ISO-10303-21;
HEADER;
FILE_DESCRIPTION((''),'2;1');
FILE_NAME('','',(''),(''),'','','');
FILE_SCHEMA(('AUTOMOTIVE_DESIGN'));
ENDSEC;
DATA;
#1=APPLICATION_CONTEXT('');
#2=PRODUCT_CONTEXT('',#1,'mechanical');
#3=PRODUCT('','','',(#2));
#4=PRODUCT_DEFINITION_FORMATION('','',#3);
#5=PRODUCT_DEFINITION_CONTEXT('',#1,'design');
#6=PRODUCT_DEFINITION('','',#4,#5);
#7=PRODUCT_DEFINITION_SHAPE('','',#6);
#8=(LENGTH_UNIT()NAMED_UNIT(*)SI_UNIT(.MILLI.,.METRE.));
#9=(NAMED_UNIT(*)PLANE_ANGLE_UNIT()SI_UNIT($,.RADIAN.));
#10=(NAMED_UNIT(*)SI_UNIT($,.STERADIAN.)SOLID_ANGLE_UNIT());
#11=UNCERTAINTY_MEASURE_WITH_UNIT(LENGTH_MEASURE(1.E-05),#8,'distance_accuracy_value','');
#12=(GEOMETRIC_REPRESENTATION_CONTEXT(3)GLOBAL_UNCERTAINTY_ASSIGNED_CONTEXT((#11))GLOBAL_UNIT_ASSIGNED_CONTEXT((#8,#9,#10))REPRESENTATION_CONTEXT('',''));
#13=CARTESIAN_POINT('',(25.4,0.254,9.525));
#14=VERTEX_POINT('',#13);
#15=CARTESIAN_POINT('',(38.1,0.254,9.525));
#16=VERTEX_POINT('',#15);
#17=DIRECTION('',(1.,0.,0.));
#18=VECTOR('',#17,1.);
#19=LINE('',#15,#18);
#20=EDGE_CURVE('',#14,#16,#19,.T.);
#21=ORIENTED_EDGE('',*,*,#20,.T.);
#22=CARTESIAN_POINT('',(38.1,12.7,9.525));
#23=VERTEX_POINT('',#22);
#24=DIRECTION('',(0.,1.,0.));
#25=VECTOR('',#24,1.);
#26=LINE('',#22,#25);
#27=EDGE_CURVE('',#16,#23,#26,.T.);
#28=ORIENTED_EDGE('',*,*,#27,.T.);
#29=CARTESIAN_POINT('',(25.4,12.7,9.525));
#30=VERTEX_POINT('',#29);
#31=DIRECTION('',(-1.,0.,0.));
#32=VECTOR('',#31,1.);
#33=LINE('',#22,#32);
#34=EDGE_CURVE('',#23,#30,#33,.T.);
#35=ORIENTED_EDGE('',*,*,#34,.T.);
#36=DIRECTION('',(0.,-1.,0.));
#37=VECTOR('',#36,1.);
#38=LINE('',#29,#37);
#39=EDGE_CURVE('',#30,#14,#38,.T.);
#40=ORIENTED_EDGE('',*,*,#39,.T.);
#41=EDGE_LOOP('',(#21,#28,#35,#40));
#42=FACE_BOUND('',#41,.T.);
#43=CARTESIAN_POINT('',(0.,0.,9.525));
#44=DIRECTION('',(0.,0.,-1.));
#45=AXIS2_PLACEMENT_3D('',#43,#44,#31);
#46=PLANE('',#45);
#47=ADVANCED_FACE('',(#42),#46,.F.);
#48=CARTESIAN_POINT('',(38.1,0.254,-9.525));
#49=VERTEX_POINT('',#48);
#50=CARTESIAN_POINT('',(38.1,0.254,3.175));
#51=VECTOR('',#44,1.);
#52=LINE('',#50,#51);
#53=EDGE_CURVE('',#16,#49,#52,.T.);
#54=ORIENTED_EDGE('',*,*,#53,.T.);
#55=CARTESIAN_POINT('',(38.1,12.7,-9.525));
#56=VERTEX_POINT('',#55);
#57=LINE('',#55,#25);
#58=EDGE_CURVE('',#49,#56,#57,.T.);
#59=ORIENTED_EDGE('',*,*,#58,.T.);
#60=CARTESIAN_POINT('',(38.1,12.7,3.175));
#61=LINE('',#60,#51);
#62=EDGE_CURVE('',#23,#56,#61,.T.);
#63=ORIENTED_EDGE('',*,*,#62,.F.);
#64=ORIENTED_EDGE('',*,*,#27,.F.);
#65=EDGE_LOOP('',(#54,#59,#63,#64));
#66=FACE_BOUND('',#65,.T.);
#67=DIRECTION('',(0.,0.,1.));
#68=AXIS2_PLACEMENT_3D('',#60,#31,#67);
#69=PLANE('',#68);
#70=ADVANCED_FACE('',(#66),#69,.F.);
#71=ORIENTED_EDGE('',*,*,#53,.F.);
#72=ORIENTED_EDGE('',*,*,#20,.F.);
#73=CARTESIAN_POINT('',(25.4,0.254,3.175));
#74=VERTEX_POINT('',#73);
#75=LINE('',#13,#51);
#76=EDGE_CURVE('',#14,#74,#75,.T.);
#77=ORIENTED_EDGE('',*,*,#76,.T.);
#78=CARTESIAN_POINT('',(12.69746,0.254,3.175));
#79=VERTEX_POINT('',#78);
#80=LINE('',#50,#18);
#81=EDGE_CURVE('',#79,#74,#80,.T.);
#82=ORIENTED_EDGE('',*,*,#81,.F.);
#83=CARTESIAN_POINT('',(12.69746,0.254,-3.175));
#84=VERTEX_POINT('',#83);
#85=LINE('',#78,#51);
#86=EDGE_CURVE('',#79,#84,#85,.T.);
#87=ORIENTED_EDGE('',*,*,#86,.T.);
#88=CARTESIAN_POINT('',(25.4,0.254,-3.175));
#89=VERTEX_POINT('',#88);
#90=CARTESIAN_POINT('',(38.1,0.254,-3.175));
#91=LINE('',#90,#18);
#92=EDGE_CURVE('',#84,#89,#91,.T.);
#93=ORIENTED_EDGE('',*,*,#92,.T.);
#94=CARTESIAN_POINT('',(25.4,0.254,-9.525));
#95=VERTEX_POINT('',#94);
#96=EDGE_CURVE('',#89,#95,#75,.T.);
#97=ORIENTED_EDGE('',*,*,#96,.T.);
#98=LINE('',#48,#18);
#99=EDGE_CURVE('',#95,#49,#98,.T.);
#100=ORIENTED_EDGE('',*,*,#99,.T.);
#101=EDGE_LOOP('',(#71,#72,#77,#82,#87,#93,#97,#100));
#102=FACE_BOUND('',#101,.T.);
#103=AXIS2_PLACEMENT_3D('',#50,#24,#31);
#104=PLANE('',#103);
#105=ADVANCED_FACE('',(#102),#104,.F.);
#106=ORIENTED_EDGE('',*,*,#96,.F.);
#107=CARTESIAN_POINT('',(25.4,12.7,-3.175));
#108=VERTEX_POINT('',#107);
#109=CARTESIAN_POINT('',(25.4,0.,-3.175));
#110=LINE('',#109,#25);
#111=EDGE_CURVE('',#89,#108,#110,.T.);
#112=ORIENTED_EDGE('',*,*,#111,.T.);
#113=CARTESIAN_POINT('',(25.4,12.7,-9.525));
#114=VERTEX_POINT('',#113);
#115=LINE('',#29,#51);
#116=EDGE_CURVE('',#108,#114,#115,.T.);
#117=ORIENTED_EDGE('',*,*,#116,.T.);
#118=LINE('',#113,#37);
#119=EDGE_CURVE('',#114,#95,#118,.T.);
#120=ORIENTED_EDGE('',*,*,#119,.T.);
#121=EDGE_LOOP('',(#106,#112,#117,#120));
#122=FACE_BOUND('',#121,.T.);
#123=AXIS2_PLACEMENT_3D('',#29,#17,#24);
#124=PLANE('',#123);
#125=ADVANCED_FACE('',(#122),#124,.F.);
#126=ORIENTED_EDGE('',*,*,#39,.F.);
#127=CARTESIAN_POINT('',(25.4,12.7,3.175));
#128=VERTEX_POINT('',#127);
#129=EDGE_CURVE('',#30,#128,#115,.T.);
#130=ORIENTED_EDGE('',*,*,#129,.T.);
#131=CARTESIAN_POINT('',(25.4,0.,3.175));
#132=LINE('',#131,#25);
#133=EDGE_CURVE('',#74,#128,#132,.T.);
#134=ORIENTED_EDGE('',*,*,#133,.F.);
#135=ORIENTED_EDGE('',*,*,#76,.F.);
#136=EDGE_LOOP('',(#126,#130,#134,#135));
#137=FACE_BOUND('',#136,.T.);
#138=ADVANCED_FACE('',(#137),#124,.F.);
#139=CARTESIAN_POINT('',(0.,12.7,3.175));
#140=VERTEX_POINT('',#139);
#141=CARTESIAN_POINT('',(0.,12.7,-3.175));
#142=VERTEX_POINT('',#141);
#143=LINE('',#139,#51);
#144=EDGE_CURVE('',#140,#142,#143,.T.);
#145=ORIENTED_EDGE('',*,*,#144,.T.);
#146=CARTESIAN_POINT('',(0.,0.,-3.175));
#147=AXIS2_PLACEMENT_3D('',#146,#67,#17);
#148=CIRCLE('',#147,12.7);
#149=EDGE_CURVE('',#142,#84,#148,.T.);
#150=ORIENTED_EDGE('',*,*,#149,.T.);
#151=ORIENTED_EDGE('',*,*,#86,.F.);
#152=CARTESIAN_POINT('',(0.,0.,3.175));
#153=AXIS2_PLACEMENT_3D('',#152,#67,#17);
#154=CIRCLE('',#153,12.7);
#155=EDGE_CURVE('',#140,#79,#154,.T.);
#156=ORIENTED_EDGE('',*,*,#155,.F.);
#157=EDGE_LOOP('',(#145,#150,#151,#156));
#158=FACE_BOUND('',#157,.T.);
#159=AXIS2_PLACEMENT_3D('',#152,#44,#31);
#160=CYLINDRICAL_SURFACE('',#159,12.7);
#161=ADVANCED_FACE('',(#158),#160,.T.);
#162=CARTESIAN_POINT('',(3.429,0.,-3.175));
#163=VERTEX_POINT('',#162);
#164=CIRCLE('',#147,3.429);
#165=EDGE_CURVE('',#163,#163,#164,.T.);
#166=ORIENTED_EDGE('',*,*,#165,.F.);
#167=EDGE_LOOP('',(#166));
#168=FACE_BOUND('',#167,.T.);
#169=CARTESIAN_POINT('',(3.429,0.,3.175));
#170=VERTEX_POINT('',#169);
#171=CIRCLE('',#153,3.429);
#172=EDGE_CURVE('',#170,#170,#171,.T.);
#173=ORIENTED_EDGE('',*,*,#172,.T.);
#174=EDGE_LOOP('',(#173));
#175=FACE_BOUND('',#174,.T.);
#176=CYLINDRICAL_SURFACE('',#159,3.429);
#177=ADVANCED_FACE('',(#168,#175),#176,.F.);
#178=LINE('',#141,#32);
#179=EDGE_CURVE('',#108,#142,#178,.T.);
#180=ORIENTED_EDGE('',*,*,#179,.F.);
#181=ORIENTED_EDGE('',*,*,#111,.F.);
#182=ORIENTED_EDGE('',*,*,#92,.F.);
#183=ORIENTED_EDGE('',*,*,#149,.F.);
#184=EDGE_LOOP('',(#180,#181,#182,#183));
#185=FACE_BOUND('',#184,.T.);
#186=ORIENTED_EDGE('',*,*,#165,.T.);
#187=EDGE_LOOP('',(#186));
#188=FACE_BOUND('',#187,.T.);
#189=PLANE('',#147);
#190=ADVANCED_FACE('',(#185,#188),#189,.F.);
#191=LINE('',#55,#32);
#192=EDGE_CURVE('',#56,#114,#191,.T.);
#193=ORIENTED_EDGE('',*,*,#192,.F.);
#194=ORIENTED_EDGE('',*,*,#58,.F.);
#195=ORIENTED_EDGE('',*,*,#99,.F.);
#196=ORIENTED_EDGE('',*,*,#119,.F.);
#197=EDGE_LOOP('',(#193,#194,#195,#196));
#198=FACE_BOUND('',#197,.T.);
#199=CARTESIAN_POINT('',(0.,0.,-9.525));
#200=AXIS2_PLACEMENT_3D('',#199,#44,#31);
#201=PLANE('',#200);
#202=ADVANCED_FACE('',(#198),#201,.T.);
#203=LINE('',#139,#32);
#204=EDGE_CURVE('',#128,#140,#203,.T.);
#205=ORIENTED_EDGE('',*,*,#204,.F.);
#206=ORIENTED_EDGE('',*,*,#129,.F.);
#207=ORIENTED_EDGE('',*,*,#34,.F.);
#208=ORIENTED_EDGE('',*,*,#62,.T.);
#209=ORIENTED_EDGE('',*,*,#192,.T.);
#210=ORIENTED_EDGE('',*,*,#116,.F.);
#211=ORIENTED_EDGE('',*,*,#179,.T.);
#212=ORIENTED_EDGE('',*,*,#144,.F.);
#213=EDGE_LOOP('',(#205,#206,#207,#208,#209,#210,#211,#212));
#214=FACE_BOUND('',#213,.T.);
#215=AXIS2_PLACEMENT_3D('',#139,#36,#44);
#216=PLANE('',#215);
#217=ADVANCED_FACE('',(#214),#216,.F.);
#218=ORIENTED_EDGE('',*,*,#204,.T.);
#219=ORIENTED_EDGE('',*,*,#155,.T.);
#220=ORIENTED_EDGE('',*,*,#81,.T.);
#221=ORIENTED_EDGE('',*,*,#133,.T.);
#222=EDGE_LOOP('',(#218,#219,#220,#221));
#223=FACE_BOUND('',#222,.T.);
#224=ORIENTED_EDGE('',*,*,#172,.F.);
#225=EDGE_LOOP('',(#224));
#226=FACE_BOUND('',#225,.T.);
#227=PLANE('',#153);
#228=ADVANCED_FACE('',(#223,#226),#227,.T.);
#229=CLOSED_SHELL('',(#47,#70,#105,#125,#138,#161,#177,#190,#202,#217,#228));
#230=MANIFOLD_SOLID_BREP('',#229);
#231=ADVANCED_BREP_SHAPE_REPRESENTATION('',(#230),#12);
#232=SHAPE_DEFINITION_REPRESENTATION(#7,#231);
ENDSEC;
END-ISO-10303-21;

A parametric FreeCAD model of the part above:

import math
import FreeCAD as App
import Part
import Sketcher
Q = App.Units.Quantity

doc = App.newDocument("Part")
body = doc.addObject("PartDesign::Body", "Body")

sketch1 = body.newObject("Sketcher::SketchObject", "Sketch")
sketch1.AttachmentSupport = (doc.getObject("XY_Plane"), [""])
sketch1.MapMode = "FlatFace"
sketch1.addGeometry([
    Part.LineSegment(App.Vector(38.1, 12.7, 0), App.Vector(0, 12.7, 0)),
    Part.ArcOfCircle(Part.Circle(App.Vector(0, 0, 0), App.Vector(0, 0, 1), 12.7), math.radians(90), math.radians(361)),
    Part.LineSegment(App.Vector(12.7, 0.3, 0), App.Vector(38.1, 0.3, 0)),
    Part.LineSegment(App.Vector(38.1, 0.3, 0), App.Vector(38.1, 12.7, 0)),
    Part.Circle(App.Vector(0, 0, 0), App.Vector(0, 0, 1), 3.4),
], False)
sketch1.addConstraint([
    Sketcher.Constraint("Tangent", 0, 2, 1, 1),
    Sketcher.Constraint("Coincident", 1, 2, 2, 1),
    Sketcher.Constraint("Coincident", 2, 2, 3, 1),
    Sketcher.Constraint("Coincident", 3, 2, 0, 1),
    Sketcher.Constraint("Horizontal", 0),
    Sketcher.Constraint("Horizontal", 2),
    Sketcher.Constraint("Vertical", 3),
    Sketcher.Constraint("Coincident", 1, 3, -1, 1),
    Sketcher.Constraint("Coincident", 4, 3, -1, 1),
    Sketcher.Constraint("Radius", 1, Q("0.5 in")),
    Sketcher.Constraint("Diameter", 4, Q("0.27 in")),
    Sketcher.Constraint("DistanceX", 0, 2, 0, 1, Q("1.5 in")),
    Sketcher.Constraint("DistanceY", 3, 1, 3, 2, Q("0.49 in")),
])
pad1 = body.newObject("PartDesign::Pad", "Pad")
pad1.Profile = sketch1
pad1.Length = Q("0.25 in")
pad1.Midplane = True

sketch2 = body.newObject("Sketcher::SketchObject", "Sketch001")
sketch2.AttachmentSupport = (doc.getObject("XY_Plane"), [""])
sketch2.MapMode = "FlatFace"
sketch2.addGeometry([
    Part.LineSegment(App.Vector(25, 13, 0), App.Vector(25, 0, 0)),
    Part.LineSegment(App.Vector(25, 0, 0), App.Vector(38, 0, 0)),
    Part.LineSegment(App.Vector(38, 0, 0), App.Vector(38, 13, 0)),
    Part.LineSegment(App.Vector(38, 13, 0), App.Vector(25, 13, 0)),
], False)
sketch2.addConstraint([
    Sketcher.Constraint("Coincident", 0, 2, 1, 1),
    Sketcher.Constraint("Coincident", 1, 2, 2, 1),
    Sketcher.Constraint("Coincident", 2, 2, 3, 1),
    Sketcher.Constraint("Coincident", 3, 2, 0, 1),
    Sketcher.Constraint("Vertical", 0),
    Sketcher.Constraint("Horizontal", 1),
    Sketcher.Constraint("Vertical", 2),
    Sketcher.Constraint("Horizontal", 3),
    Sketcher.Constraint("DistanceX", 1, 1, 1, 2, Q("0.5 in")),
    Sketcher.Constraint("DistanceX", -1, 1, 0, 2, Q("1 in")),
    Sketcher.Constraint("DistanceY", 0, 2, 0, 1, Q("0.49 in")),
    Sketcher.Constraint("DistanceY", -1, 1, 2, 2, Q("0.5 in")),
])
pad2 = body.newObject("PartDesign::Pad", "Pad001")
pad2.Profile = sketch2
pad2.Length = Q("0.75 in")
pad2.Midplane = True

doc.recompute()
